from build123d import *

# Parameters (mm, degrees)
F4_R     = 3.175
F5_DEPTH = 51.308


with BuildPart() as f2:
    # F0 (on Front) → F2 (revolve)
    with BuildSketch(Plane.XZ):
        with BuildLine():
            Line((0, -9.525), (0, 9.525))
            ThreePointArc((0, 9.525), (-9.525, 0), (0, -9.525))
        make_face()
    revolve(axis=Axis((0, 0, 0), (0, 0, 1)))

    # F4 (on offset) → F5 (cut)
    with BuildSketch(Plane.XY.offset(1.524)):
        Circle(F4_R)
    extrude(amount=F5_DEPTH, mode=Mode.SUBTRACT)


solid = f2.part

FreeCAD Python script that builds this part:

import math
import FreeCAD as App
import Part
import Sketcher
Q = App.Units.Quantity

doc = App.newDocument("Part")
body = doc.addObject("PartDesign::Body", "Body")

sketch1 = body.newObject("Sketcher::SketchObject", "Sketch")
sketch1.AttachmentSupport = (doc.getObject("XZ_Plane"), [""])
sketch1.MapMode = "FlatFace"
sketch1.addGeometry([
    Part.LineSegment(App.Vector(0, -10, 0), App.Vector(0, 10, 0)),
    Part.ArcOfCircle(Part.Circle(App.Vector(0, 0, 0), App.Vector(0, 0, 1), 10), math.radians(90), math.radians(270)),
], False)
sketch1.addConstraint([
    Sketcher.Constraint("Coincident", 0, 1, 1, 2),
    Sketcher.Constraint("Coincident", 1, 1, 0, 2),
    Sketcher.Constraint("Vertical", 0),
    Sketcher.Constraint("Coincident", 1, 3, -1, 1),
    Sketcher.Constraint("PointOnObject", 0, 1, -2),
    Sketcher.Constraint("Radius", 1, Q("0.375 in")),
])
revolution = body.newObject("PartDesign::Revolution", "Revolution")
revolution.Profile = sketch1
revolution.ReferenceAxis = (sketch1, ["V_Axis"])
revolution.Angle = 360

sketch2 = body.newObject("Sketcher::SketchObject", "Sketch001")
sketch2.AttachmentSupport = (doc.getObject("XY_Plane"), [""])
sketch2.MapMode = "FlatFace"
sketch2.AttachmentOffset = App.Placement(App.Vector(0, 0, 0.06 * 25.4), App.Rotation())
sketch2.addGeometry(Part.Circle(App.Vector(0, 0, 0), App.Vector(0, 0, 1), 3.2), False)
sketch2.addConstraint([
    Sketcher.Constraint("Coincident", 0, 3, -1, 1),
    Sketcher.Constraint("Diameter", 0, Q("0.25 in")),
])
pocket1 = body.newObject("PartDesign::Pocket", "Pocket")
pocket1.Profile = sketch2
pocket1.Length = Q("2.02 in")
pocket1.Reversed = True

doc.recompute()
